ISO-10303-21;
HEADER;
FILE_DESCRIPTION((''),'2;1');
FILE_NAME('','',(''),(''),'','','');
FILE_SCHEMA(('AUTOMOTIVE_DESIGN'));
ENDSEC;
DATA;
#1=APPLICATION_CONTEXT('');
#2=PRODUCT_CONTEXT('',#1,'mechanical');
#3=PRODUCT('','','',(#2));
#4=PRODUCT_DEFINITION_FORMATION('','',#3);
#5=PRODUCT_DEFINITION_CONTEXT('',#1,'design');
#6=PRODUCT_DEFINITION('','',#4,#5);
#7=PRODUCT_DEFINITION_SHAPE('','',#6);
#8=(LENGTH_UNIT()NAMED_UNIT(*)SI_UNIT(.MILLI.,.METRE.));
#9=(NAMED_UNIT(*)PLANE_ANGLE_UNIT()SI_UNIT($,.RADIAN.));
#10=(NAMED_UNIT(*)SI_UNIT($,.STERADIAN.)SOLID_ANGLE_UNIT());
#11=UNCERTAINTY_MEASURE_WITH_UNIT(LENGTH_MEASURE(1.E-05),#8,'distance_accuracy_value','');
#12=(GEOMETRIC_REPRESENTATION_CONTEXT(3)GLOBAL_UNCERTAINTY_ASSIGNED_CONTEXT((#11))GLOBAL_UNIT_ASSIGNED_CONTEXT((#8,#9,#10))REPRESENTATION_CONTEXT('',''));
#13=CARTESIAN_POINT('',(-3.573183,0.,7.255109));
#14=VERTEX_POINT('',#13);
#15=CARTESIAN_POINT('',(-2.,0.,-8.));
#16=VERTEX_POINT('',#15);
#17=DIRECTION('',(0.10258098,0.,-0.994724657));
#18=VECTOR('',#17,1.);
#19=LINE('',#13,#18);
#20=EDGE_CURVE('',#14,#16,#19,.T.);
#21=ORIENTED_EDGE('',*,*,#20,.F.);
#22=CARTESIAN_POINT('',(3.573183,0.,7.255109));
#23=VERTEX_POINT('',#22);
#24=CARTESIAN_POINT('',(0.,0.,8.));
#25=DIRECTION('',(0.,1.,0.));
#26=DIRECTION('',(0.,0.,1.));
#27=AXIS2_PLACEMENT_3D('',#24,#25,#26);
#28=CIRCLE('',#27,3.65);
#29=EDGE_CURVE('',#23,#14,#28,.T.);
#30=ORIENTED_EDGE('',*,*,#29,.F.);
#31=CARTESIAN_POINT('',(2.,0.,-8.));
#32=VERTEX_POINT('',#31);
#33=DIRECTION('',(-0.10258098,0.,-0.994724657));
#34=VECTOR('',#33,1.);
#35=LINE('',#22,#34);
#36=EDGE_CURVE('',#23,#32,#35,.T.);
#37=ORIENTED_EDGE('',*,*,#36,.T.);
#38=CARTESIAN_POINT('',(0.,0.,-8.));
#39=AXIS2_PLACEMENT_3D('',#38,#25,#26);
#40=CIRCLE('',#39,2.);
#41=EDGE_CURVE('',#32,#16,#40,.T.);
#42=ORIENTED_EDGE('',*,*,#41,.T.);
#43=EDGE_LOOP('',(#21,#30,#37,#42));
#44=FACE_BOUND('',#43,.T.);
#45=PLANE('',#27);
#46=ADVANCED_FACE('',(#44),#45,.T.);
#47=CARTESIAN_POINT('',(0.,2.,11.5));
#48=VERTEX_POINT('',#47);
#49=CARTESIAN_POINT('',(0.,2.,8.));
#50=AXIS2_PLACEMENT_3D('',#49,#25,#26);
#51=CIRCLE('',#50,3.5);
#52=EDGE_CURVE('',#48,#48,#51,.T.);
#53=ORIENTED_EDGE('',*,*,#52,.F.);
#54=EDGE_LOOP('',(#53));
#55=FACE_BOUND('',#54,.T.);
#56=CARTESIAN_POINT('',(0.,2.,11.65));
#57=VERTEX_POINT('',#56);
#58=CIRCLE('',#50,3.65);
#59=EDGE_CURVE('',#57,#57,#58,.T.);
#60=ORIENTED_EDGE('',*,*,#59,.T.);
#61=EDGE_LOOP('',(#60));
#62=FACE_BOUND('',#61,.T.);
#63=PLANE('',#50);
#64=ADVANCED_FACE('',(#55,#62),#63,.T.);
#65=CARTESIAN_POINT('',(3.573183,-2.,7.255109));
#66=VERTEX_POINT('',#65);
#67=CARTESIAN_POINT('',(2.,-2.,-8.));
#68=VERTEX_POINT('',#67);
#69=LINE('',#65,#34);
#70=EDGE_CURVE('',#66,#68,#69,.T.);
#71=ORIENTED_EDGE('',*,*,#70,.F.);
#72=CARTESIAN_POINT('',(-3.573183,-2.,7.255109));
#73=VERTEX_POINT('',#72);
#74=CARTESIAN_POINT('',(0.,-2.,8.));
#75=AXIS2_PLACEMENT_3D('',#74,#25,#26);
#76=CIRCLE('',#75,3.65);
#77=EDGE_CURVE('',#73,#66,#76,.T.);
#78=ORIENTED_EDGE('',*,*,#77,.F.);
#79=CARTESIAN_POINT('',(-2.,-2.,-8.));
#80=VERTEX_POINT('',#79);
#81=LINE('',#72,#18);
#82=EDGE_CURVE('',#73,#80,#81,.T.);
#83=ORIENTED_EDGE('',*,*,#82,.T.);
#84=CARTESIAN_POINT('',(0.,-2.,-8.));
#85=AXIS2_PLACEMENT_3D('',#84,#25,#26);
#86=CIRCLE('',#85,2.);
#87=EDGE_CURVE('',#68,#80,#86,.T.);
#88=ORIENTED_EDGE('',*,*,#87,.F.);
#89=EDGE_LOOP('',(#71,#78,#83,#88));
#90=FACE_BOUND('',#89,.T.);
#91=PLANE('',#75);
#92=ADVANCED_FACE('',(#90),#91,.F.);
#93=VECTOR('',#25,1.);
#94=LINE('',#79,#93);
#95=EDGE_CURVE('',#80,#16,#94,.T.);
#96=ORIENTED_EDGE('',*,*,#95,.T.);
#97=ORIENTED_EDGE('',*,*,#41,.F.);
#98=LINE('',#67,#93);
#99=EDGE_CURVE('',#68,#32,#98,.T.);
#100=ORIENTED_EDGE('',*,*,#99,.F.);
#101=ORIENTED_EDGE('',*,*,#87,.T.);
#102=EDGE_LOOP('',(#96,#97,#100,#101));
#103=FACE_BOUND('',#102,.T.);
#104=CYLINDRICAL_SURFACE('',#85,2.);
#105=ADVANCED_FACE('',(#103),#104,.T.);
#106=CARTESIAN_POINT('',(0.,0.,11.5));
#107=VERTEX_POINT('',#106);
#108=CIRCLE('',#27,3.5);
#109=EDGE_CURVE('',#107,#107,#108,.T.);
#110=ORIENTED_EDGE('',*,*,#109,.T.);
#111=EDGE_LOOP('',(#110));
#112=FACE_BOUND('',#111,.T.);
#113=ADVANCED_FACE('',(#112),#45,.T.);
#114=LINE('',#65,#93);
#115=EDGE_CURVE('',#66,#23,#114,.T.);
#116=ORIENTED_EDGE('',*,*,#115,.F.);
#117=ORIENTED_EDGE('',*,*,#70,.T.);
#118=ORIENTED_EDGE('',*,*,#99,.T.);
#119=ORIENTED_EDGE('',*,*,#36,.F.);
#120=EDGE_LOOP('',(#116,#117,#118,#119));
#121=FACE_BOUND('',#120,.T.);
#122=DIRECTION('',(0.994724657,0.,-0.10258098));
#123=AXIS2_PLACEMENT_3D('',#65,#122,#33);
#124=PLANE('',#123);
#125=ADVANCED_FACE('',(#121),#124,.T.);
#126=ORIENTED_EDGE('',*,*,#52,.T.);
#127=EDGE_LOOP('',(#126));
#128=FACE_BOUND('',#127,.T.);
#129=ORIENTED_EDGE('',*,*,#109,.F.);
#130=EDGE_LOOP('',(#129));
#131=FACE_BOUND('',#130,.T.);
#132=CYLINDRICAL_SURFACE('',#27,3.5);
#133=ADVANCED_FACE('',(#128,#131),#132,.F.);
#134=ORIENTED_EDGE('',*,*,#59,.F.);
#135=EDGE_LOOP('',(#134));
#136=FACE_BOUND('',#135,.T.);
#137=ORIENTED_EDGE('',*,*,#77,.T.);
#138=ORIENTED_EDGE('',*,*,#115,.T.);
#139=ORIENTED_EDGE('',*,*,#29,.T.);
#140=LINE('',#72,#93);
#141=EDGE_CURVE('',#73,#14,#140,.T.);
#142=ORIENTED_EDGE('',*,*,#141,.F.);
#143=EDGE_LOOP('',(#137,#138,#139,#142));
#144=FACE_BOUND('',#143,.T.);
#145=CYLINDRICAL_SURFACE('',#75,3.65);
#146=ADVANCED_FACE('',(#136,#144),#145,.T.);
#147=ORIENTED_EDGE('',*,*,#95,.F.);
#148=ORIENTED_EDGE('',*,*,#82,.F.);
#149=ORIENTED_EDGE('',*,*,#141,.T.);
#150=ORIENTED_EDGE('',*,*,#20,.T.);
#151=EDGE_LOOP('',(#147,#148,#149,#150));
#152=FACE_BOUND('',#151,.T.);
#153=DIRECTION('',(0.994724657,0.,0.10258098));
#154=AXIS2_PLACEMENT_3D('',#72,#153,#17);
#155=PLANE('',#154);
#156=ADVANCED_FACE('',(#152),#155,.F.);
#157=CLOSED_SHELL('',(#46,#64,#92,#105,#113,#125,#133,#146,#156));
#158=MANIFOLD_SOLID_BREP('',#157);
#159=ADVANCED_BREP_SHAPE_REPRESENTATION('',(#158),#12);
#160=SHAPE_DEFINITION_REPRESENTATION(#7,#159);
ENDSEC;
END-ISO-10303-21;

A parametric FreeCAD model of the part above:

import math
import FreeCAD as App
import Part
import Sketcher
Q = App.Units.Quantity

doc = App.newDocument("Part")
body = doc.addObject("PartDesign::Body", "Body")

# Sketch on XZ plane
sketch1 = body.newObject("Sketcher::SketchObject", "Sketch")
sketch1.AttachmentSupport = (doc.getObject("XZ_Plane"), [""])
sketch1.MapMode = "FlatFace"
sketch1.addGeometry(Part.LineSegment(App.Vector(-2, -8, 0), App.Vector(-3.573183, 7.255109, 0)), False)
sketch1.addGeometry(Part.ArcOfCircle(Part.Circle(App.Vector(0, 8, 0), App.Vector(0, 0, 1), 3.65), math.radians(-11.775629), math.radians(191.775629)), False)
sketch1.addGeometry(Part.LineSegment(App.Vector(3.573183, 7.255109, 0), App.Vector(2, -8, 0)), False)
sketch1.addGeometry(Part.ArcOfCircle(Part.Circle(App.Vector(0, -8, 0), App.Vector(0, 0, 1), 2), math.radians(180), math.radians(360)), False)
sketch1.addConstraint(Sketcher.Constraint("Coincident", 0, 2, 1, 2))
sketch1.addConstraint(Sketcher.Constraint("Coincident", 1, 1, 2, 1))
sketch1.addConstraint(Sketcher.Constraint("Coincident", 2, 2, 3, 2))
sketch1.addConstraint(Sketcher.Constraint("Coincident", 3, 1, 0, 1))
sketch1.addConstraint(Sketcher.Constraint("Symmetric", 1, 3, 3, 3, -1, 1))
sketch1.addConstraint(Sketcher.Constraint("Symmetric", 0, 2, 1, 1, -2))
sketch1.addConstraint(Sketcher.Constraint("Horizontal", 3, 3, 2, 2))
sketch1.addConstraint(Sketcher.Constraint("Horizontal", 2, 2, 3, 1))
sketch1.addConstraint(Sketcher.Constraint("Radius", 3, Q("2 mm")))
sketch1.addConstraint(Sketcher.Constraint("Radius", 1, Q("3.65 mm")))
sketch1.addConstraint(Sketcher.Constraint("DistanceY", -1, 1, 1, 3, Q("8 mm")))
sketch1.addConstraint(Sketcher.Constraint("Distance", 0, Q("15.336012 mm")))
pad1 = body.newObject("PartDesign::Pad", "Pad")
pad1.Profile = sketch1
pad1.Length = 2

# Sketch on XZ plane
sketch2 = body.newObject("Sketcher::SketchObject", "Sketch001")
sketch2.AttachmentSupport = (doc.getObject("XZ_Plane"), [""])
sketch2.MapMode = "FlatFace"
sketch2.AttachmentOffset = App.Placement(App.Vector(0, 0, -2), App.Rotation())
sketch2.addGeometry(Part.Circle(App.Vector(0, 8, 0), App.Vector(0, 0, 1), 3.65), False)
sketch2.addConstraint(Sketcher.Constraint("PointOnObject", 0, 3, -2))
sketch2.addConstraint(Sketcher.Constraint("Diameter", 0, Q("7.3 mm")))
sketch2.addConstraint(Sketcher.Constraint("DistanceY", -1, 1, 0, 3, Q("8 mm")))
pad2 = body.newObject("PartDesign::Pad", "Pad001")
pad2.Profile = sketch2
pad2.Length = 2

# Sketch on XZ plane
sketch3 = body.newObject("Sketcher::SketchObject", "Sketch002")
sketch3.AttachmentSupport = (doc.getObject("XZ_Plane"), [""])
sketch3.MapMode = "FlatFace"
sketch3.AttachmentOffset = App.Placement(App.Vector(0, 0, -2), App.Rotation())
sketch3.addGeometry(Part.Circle(App.Vector(0, 8, 0), App.Vector(0, 0, 1), 3.5), False)
sketch3.addConstraint(Sketcher.Constraint("PointOnObject", 0, 3, -2))
sketch3.addConstraint(Sketcher.Constraint("Diameter", 0, Q("7 mm")))
sketch3.addConstraint(Sketcher.Constraint("DistanceY", -1, 1, 0, 3, Q("8 mm")))
pocket1 = body.newObject("PartDesign::Pocket", "Pocket")
pocket1.Profile = sketch3
pocket1.Length = 2
pocket1.Reversed = True

doc.recompute()
